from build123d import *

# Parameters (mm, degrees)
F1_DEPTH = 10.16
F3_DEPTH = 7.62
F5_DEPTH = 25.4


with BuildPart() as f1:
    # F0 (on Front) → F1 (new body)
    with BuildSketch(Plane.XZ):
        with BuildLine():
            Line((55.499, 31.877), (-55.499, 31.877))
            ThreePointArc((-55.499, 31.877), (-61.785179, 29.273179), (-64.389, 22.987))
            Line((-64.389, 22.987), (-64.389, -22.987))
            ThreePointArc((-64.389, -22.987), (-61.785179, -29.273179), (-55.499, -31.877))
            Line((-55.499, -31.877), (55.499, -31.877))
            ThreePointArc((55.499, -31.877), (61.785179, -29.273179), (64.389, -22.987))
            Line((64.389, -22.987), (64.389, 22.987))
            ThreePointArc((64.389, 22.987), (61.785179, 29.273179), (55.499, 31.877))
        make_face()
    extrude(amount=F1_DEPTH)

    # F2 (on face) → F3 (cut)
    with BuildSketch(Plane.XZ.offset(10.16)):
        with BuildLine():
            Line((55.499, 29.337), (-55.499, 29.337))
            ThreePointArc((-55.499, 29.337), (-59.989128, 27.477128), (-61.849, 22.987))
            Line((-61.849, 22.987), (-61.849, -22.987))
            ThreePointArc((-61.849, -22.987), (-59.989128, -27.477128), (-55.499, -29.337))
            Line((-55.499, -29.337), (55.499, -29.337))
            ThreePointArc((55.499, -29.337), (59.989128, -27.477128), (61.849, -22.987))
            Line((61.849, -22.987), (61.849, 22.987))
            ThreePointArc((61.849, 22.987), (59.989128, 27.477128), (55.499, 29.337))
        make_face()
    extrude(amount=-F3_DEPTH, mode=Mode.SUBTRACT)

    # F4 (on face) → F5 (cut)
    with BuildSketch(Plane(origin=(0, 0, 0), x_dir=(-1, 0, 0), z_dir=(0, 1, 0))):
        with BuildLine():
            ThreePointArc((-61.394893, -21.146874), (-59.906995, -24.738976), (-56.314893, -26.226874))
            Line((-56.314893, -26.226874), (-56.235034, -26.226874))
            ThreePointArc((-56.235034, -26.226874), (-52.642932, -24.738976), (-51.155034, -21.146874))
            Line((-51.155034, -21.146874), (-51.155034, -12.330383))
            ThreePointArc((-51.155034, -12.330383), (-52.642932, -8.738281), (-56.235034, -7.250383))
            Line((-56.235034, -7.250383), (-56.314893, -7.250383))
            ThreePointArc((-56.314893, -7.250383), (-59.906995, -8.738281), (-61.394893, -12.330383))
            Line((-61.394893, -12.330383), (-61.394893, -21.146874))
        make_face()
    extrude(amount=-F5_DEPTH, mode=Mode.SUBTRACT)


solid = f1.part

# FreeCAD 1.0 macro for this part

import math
import FreeCAD as App
import Part
import Sketcher
Q = App.Units.Quantity

doc = App.newDocument("Part")
body = doc.addObject("PartDesign::Body", "Body")

# Sketch on XZ plane
sketch1 = body.newObject("Sketcher::SketchObject", "Sketch")
sketch1.AttachmentSupport = (doc.getObject("XZ_Plane"), [""])
sketch1.MapMode = "FlatFace"
sketch1.addGeometry([
    Part.LineSegment(App.Vector(55, 32, 0), App.Vector(-55, 32, 0)),  # 0
    Part.ArcOfCircle(Part.Circle(App.Vector(-55, 23, 0), App.Vector(0, 0, 1), 9), math.radians(90), math.radians(180)),  # 1
    Part.LineSegment(App.Vector(-64, 23, 0), App.Vector(-64, -23, 0)),  # 2
    Part.ArcOfCircle(Part.Circle(App.Vector(-55, -23, 0), App.Vector(0, 0, 1), 9), math.radians(-180), math.radians(-90)),  # 3
    Part.LineSegment(App.Vector(-55, -32, 0), App.Vector(55, -32, 0)),  # 4
    Part.ArcOfCircle(Part.Circle(App.Vector(55, -23, 0), App.Vector(0, 0, 1), 9), math.radians(-90), math.radians(0)),  # 5
    Part.LineSegment(App.Vector(64, -23, 0), App.Vector(64, 23, 0)),  # 6
    Part.ArcOfCircle(Part.Circle(App.Vector(55, 23, 0), App.Vector(0, 0, 1), 9), math.radians(0), math.radians(90)),  # 7
], False)
sketch1.addConstraint([
    Sketcher.Constraint("Tangent", 0, 2, 1, 1),
    Sketcher.Constraint("Tangent", 1, 2, 2, 1),
    Sketcher.Constraint("Tangent", 2, 2, 3, 1),
    Sketcher.Constraint("Tangent", 3, 2, 4, 1),
    Sketcher.Constraint("Tangent", 4, 2, 5, 1),
    Sketcher.Constraint("Tangent", 5, 2, 6, 1),
    Sketcher.Constraint("Tangent", 6, 2, 7, 1),
    Sketcher.Constraint("Tangent", 7, 2, 0, 1),
    Sketcher.Constraint("Horizontal", 0),
    Sketcher.Constraint("Vertical", 2),
    Sketcher.Constraint("Horizontal", 4),
    Sketcher.Constraint("Vertical", 6),
    Sketcher.Constraint("Equal", 1, 3),
    Sketcher.Constraint("Equal", 3, 5),
    Sketcher.Constraint("Equal", 5, 7),
    Sketcher.Constraint("Symmetric", 1, 3, 5, 3, -1, 1),
    Sketcher.Constraint("Radius", 1, Q("0.35 in")),
    Sketcher.Constraint("DistanceX", 0, 2, 0, 1, Q("4.37 in")),
    Sketcher.Constraint("DistanceY", 2, 2, 2, 1, Q("1.81 in")),
])
pad1 = body.newObject("PartDesign::Pad", "Pad")
pad1.Profile = sketch1
pad1.Length = Q("0.4 in")

# Sketch on XZ plane
sketch2 = body.newObject("Sketcher::SketchObject", "Sketch001")
sketch2.AttachmentSupport = (doc.getObject("XZ_Plane"), [""])
sketch2.MapMode = "FlatFace"
sketch2.AttachmentOffset = App.Placement(App.Vector(0, 0, 0.4 * 25.4), App.Rotation())
sketch2.addGeometry([
    Part.LineSegment(App.Vector(55, 29, 0), App.Vector(-55, 29, 0)),  # 0
    Part.ArcOfCircle(Part.Circle(App.Vector(-55, 23, 0), App.Vector(0, 0, 1), 6), math.radians(90), math.radians(180)),  # 1
    Part.LineSegment(App.Vector(-62, 23, 0), App.Vector(-62, -23, 0)),  # 2
    Part.ArcOfCircle(Part.Circle(App.Vector(-55, -23, 0), App.Vector(0, 0, 1), 6), math.radians(-180), math.radians(-90)),  # 3
    Part.LineSegment(App.Vector(-55, -29, 0), App.Vector(55, -29, 0)),  # 4
    Part.ArcOfCircle(Part.Circle(App.Vector(55, -23, 0), App.Vector(0, 0, 1), 6), math.radians(-90), math.radians(0)),  # 5
    Part.LineSegment(App.Vector(62, -23, 0), App.Vector(62, 23, 0)),  # 6
    Part.ArcOfCircle(Part.Circle(App.Vector(55, 23, 0), App.Vector(0, 0, 1), 6), math.radians(0), math.radians(90)),  # 7
], False)
sketch2.addConstraint([
    Sketcher.Constraint("Tangent", 0, 2, 1, 1),
    Sketcher.Constraint("Tangent", 1, 2, 2, 1),
    Sketcher.Constraint("Tangent", 2, 2, 3, 1),
    Sketcher.Constraint("Tangent", 3, 2, 4, 1),
    Sketcher.Constraint("Tangent", 4, 2, 5, 1),
    Sketcher.Constraint("Tangent", 5, 2, 6, 1),
    Sketcher.Constraint("Tangent", 6, 2, 7, 1),
    Sketcher.Constraint("Tangent", 7, 2, 0, 1),
    Sketcher.Constraint("Horizontal", 0),
    Sketcher.Constraint("Vertical", 2),
    Sketcher.Constraint("Horizontal", 4),
    Sketcher.Constraint("Vertical", 6),
    Sketcher.Constraint("Equal", 1, 3),
    Sketcher.Constraint("Equal", 3, 5),
    Sketcher.Constraint("Equal", 5, 7),
    Sketcher.Constraint("Symmetric", 1, 3, 5, 3, -1, 1),
    Sketcher.Constraint("Radius", 1, Q("0.25 in")),
    Sketcher.Constraint("DistanceX", 0, 2, 0, 1, Q("4.37 in")),
    Sketcher.Constraint("DistanceY", 2, 2, 2, 1, Q("1.81 in")),
])
pocket1 = body.newObject("PartDesign::Pocket", "Pocket")
pocket1.Profile = sketch2
pocket1.Length = Q("0.3 in")

# Sketch on XZ plane
sketch3 = body.newObject("Sketcher::SketchObject", "Sketch002")
sketch3.AttachmentSupport = (doc.getObject("XZ_Plane"), [""])
sketch3.MapMode = "FlatFace"
sketch3.addGeometry([
    Part.ArcOfCircle(Part.Circle(App.Vector(56.31, -21.15, 0), App.Vector(0, 0, 1), 5.08), math.radians(-90), math.radians(0)),  # 0
    Part.LineSegment(App.Vector(56.31, -26.23, 0), App.Vector(56.24, -26.23, 0)),  # 1
    Part.ArcOfCircle(Part.Circle(App.Vector(56.24, -21.15, 0), App.Vector(0, 0, 1), 5.08), math.radians(-180), math.radians(-90)),  # 2
    Part.LineSegment(App.Vector(51.16, -21.15, 0), App.Vector(51.16, -12.33, 0)),  # 3
    Part.ArcOfCircle(Part.Circle(App.Vector(56.24, -12.33, 0), App.Vector(0, 0, 1), 5.08), math.radians(90), math.radians(180)),  # 4
    Part.LineSegment(App.Vector(56.24, -7.25, 0), App.Vector(56.31, -7.25, 0)),  # 5
    Part.ArcOfCircle(Part.Circle(App.Vector(56.31, -12.33, 0), App.Vector(0, 0, 1), 5.08), math.radians(0), math.radians(90)),  # 6
    Part.LineSegment(App.Vector(61.39, -12.33, 0), App.Vector(61.39, -21.15, 0)),  # 7
], False)
sketch3.addConstraint([
    Sketcher.Constraint("Tangent", 0, 1, 1, 1),
    Sketcher.Constraint("Tangent", 1, 2, 2, 2),
    Sketcher.Constraint("Tangent", 2, 1, 3, 1),
    Sketcher.Constraint("Tangent", 3, 2, 4, 2),
    Sketcher.Constraint("Tangent", 4, 1, 5, 1),
    Sketcher.Constraint("Tangent", 5, 2, 6, 2),
    Sketcher.Constraint("Tangent", 6, 1, 7, 1),
    Sketcher.Constraint("Tangent", 7, 2, 0, 2),
    Sketcher.Constraint("Horizontal", 1),
    Sketcher.Constraint("Vertical", 3),
    Sketcher.Constraint("Horizontal", 5),
    Sketcher.Constraint("Vertical", 7),
    Sketcher.Constraint("Equal", 0, 2),
    Sketcher.Constraint("Equal", 2, 4),
    Sketcher.Constraint("Equal", 4, 6),
    Sketcher.Constraint("Radius", 0, Q("0.2000001 in")),
    Sketcher.Constraint("DistanceX", 1, 2, 1, 1, 0.079859),
    Sketcher.Constraint("DistanceY", 3, 1, 3, 2, 8.816491),
    Sketcher.Constraint("DistanceX", -1, 1, 0, 3, 56.314891),
    Sketcher.Constraint("DistanceY", 0, 3, -1, 1, 21.146872),
])
pocket2 = body.newObject("PartDesign::Pocket", "Pocket001")
pocket2.Profile = sketch3
pocket2.Length = Q("1 in")
pocket2.Reversed = True

doc.recompute()
